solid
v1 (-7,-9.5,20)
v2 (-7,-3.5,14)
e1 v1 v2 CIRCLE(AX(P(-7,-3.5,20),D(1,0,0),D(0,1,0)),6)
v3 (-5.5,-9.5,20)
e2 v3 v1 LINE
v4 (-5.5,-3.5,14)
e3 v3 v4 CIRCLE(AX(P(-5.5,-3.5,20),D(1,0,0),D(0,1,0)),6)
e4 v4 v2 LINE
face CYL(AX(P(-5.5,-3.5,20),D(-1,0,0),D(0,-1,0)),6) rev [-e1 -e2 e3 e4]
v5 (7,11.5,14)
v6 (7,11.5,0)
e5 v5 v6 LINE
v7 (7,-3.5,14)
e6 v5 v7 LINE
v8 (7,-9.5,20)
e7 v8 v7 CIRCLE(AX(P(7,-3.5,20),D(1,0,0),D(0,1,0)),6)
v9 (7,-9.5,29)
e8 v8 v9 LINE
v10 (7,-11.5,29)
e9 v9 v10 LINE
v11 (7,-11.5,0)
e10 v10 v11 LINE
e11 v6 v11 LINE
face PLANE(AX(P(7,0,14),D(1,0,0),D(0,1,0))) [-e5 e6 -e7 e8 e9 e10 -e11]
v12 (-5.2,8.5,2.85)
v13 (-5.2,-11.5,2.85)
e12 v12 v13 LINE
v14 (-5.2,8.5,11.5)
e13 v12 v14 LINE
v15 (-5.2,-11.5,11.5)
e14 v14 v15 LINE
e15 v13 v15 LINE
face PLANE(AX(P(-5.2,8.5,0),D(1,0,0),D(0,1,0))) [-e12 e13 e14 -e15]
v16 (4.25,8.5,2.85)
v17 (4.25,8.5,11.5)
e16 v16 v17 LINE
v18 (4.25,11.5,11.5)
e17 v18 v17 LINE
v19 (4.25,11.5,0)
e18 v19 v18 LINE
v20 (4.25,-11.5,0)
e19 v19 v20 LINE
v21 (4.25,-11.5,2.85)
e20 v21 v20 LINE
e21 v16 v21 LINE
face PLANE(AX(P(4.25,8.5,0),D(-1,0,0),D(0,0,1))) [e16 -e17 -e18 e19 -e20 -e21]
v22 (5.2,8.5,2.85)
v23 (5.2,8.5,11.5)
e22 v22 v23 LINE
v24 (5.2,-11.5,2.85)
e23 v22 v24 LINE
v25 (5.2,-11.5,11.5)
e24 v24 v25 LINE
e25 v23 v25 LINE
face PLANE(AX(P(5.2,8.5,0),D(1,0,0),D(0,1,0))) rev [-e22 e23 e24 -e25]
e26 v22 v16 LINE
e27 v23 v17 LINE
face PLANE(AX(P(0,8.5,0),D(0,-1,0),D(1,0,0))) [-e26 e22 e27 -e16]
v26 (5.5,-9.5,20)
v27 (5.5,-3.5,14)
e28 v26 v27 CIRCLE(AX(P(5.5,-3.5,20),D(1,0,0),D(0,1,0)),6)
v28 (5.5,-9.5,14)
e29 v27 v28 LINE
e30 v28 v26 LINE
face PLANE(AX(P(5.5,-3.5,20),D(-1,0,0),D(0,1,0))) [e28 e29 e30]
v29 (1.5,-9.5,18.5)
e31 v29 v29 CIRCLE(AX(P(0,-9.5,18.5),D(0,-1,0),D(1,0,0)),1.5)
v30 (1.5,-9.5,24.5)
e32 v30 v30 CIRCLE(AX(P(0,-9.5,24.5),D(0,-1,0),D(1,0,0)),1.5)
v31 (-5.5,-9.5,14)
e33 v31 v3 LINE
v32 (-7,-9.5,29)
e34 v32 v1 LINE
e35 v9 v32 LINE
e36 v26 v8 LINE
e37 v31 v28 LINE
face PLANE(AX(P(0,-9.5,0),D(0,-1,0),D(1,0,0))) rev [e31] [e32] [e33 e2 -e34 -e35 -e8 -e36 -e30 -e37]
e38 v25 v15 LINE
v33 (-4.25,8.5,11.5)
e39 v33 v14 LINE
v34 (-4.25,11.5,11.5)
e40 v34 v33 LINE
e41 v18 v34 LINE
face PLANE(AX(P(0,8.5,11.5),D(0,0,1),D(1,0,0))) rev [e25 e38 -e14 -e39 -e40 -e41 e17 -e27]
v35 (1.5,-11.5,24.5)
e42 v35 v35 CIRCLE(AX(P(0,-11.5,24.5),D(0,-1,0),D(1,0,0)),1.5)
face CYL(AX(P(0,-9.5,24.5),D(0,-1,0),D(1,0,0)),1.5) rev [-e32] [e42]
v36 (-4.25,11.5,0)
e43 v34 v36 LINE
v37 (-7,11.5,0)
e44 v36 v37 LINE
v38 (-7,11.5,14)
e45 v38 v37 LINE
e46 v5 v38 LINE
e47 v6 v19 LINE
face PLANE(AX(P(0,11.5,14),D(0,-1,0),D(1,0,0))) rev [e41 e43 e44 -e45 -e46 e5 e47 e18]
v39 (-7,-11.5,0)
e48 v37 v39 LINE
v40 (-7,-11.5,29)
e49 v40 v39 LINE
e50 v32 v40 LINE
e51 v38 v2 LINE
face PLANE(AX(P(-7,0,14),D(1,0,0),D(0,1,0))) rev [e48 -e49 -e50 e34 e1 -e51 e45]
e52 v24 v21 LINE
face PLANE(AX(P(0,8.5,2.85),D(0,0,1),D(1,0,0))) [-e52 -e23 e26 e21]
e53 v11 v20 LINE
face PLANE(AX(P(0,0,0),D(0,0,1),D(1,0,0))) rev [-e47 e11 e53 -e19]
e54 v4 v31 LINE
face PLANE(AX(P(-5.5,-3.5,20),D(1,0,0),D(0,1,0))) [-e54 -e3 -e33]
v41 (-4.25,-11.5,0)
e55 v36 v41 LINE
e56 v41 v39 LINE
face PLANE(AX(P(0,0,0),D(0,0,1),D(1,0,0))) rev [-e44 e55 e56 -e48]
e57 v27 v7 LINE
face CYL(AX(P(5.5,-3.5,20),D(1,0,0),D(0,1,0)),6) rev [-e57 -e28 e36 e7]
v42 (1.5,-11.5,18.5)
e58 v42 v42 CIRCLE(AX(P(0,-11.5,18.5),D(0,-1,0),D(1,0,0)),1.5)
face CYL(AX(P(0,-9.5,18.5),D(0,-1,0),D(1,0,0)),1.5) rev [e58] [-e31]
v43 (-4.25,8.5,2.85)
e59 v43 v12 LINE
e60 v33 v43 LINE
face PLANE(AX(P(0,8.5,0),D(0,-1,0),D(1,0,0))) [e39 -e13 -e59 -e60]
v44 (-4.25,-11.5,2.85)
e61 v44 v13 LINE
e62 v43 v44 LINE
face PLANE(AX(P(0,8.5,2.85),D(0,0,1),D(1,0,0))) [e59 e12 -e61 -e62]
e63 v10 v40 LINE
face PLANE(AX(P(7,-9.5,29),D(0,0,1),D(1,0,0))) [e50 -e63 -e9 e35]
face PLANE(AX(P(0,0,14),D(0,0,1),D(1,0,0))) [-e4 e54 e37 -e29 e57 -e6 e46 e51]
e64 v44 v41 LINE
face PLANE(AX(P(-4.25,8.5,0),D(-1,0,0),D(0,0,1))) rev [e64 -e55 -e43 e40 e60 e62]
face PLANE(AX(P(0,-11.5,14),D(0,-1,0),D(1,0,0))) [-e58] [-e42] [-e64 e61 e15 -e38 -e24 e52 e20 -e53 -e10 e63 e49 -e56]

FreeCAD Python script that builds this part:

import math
import FreeCAD as App
import Part
import Sketcher
from FreeCAD import Vector
Q = App.Units.Quantity


def add_polygon(sketch, points):
    """Adds a closed chain of lines whose ends are joined by coincident constraints."""
    first, n = sketch.GeometryCount, len(points)
    for a, b in zip(points, points[1:] + points[:1]):
        sketch.addGeometry(Part.LineSegment(App.Vector(*a, 0), App.Vector(*b, 0)), False)
    for i in range(n):
        sketch.addConstraint(Sketcher.Constraint("Coincident", first + i, 2, first + (i + 1) % n, 1))

doc = App.newDocument("Part")
body = doc.addObject("PartDesign::Body", "Body")

# Sketch on XY plane
sketch1 = body.newObject("Sketcher::SketchObject", "Sketch")
sketch1.AttachmentSupport = (doc.getObject("XY_Plane"), [""])
sketch1.MapMode = "FlatFace"
add_polygon(sketch1, [(-7, 11.5), (-7, -11.5), (7, -11.5), (7, 11.5)])  # lines 0-3
sketch1.addConstraint(Sketcher.Constraint("Vertical", 0))
sketch1.addConstraint(Sketcher.Constraint("Horizontal", 1))
sketch1.addConstraint(Sketcher.Constraint("Vertical", 2))
sketch1.addConstraint(Sketcher.Constraint("Horizontal", 3))
sketch1.addConstraint(Sketcher.Constraint("Symmetric", 0, 2, 2, 2, -1, 1))
sketch1.addConstraint(Sketcher.Constraint("DistanceX", 1, 1, 1, 2, Q("14 mm")))
sketch1.addConstraint(Sketcher.Constraint("DistanceY", 0, 2, 0, 1, Q("23 mm")))
pad1 = body.newObject("PartDesign::Pad", "Pad")
pad1.Profile = sketch1
pad1.Length = 14

# Sketch on XZ plane
sketch2 = body.newObject("Sketcher::SketchObject", "Sketch001")
sketch2.AttachmentSupport = (doc.getObject("XZ_Plane"), [""])
sketch2.MapMode = "FlatFace"
sketch2.AttachmentOffset = App.Placement(Vector(0, 0, 11.5), App.Rotation())
add_polygon(sketch2, [(-5.2, 11.5), (-5.2, 2.85), (-4.25, 2.85), (-4.25, 0), (4.25, 0), (4.25, 2.85), (5.2, 2.85), (5.2, 11.5)])  # lines 0-7
sketch2.addConstraint(Sketcher.Constraint("Vertical", 0))
sketch2.addConstraint(Sketcher.Constraint("Horizontal", 1))
sketch2.addConstraint(Sketcher.Constraint("Vertical", 2))
sketch2.addConstraint(Sketcher.Constraint("Horizontal", 3))
sketch2.addConstraint(Sketcher.Constraint("Vertical", 4))
sketch2.addConstraint(Sketcher.Constraint("Horizontal", 5))
sketch2.addConstraint(Sketcher.Constraint("Vertical", 6))
sketch2.addConstraint(Sketcher.Constraint("Horizontal", 7))
sketch2.addConstraint(Sketcher.Constraint("Symmetric", 2, 2, 3, 2, -1, 1))
sketch2.addConstraint(Sketcher.Constraint("Symmetric", 0, 2, 5, 2, -2))
sketch2.addConstraint(Sketcher.Constraint("DistanceX", 3, 1, 3, 2, Q("8.5 mm")))
sketch2.addConstraint(Sketcher.Constraint("DistanceX", 7, 2, 7, 1, Q("10.4 mm")))
sketch2.addConstraint(Sketcher.Constraint("DistanceY", 0, 2, 0, 1, Q("8.65 mm")))
sketch2.addConstraint(Sketcher.Constraint("DistanceY", 2, 2, 2, 1, Q("2.85 mm")))
pocket1 = body.newObject("PartDesign::Pocket", "Pocket")
pocket1.Profile = sketch2
pocket1.Length = 20

# Sketch on XZ plane
sketch3 = body.newObject("Sketcher::SketchObject", "Sketch002")
sketch3.AttachmentSupport = (doc.getObject("XZ_Plane"), [""])
sketch3.MapMode = "FlatFace"
sketch3.AttachmentOffset = App.Placement(Vector(0, 0, 11.5), App.Rotation())
add_polygon(sketch3, [(-7, 29), (-7, 14), (7, 14), (7, 29)])  # lines 0-3
sketch3.addGeometry(Part.Circle(Vector(0, 18.5, 0), Vector(0, 0, 1), 1.5), False)  # 4
sketch3.addGeometry(Part.Circle(Vector(0, 24.5, 0), Vector(0, 0, 1), 1.5), False)  # 5
sketch3.addConstraint(Sketcher.Constraint("Vertical", 0))
sketch3.addConstraint(Sketcher.Constraint("Horizontal", 1))
sketch3.addConstraint(Sketcher.Constraint("Vertical", 2))
sketch3.addConstraint(Sketcher.Constraint("Horizontal", 3))
sketch3.addConstraint(Sketcher.Constraint("Equal", 4, 5))
sketch3.addConstraint(Sketcher.Constraint("PointOnObject", 4, 3, -2))
sketch3.addConstraint(Sketcher.Constraint("PointOnObject", 5, 3, -2))
sketch3.addConstraint(Sketcher.Constraint("Diameter", 4, Q("3 mm")))
sketch3.addConstraint(Sketcher.Constraint("DistanceX", 1, 1, 1, 2, Q("14 mm")))
sketch3.addConstraint(Sketcher.Constraint("DistanceY", 0, 2, 0, 1, Q("15 mm")))
sketch3.addConstraint(Sketcher.Constraint("DistanceX", 0, 2, -1, 1, Q("7 mm")))
sketch3.addConstraint(Sketcher.Constraint("DistanceY", -1, 1, 0, 2, Q("14 mm")))
sketch3.addConstraint(Sketcher.Constraint("DistanceY", 4, 3, 5, 3, Q("6 mm")))
sketch3.addConstraint(Sketcher.Constraint("DistanceY", -1, 1, 4, 3, Q("18.5 mm")))
pad2 = body.newObject("PartDesign::Pad", "Pad001")
pad2.Profile = sketch3
pad2.Length = 2
pad2.Reversed = True

# Sketch on YZ plane
sketch4 = body.newObject("Sketcher::SketchObject", "Sketch003")
sketch4.AttachmentSupport = (doc.getObject("YZ_Plane"), [""])
sketch4.MapMode = "FlatFace"
sketch4.AttachmentOffset = App.Placement(Vector(0, 0, -7), App.Rotation())
sketch4.addGeometry(Part.LineSegment(Vector(-3.5, 14, 0), Vector(-9.5, 14, 0)), False)
sketch4.addGeometry(Part.LineSegment(Vector(-9.5, 14, 0), Vector(-9.5, 20, 0)), False)
sketch4.addGeometry(Part.ArcOfCircle(Part.Circle(Vector(-3.5, 20, 0), Vector(0, 0, 1), 6), math.radians(180), math.radians(270)), False)
sketch4.addConstraint(Sketcher.Constraint("Coincident", 0, 2, 1, 1))
sketch4.addConstraint(Sketcher.Constraint("Tangent", 1, 2, 2, 1))
sketch4.addConstraint(Sketcher.Constraint("Tangent", 2, 2, 0, 1))
sketch4.addConstraint(Sketcher.Constraint("Horizontal", 0))
sketch4.addConstraint(Sketcher.Constraint("Vertical", 1))
sketch4.addConstraint(Sketcher.Constraint("Radius", 2, Q("6 mm")))
sketch4.addConstraint(Sketcher.Constraint("DistanceY", -1, 1, 2, 3, Q("20 mm")))
sketch4.addConstraint(Sketcher.Constraint("DistanceX", 2, 3, -1, 1, Q("3.5 mm")))
pad3 = body.newObject("PartDesign::Pad", "Pad002")
pad3.Profile = sketch4
pad3.Length = 1.5
doc.recompute()

mirrored = body.newObject("PartDesign::Mirrored", "Mirrored")
mirrored.Originals = [pad3]
mirrored.MirrorPlane = (doc.getObject("YZ_Plane"), [""])
body.Tip = mirrored

# Sketch on XZ plane
sketch5 = body.newObject("Sketcher::SketchObject", "Sketch004")
sketch5.AttachmentSupport = (doc.getObject("XZ_Plane"), [""])
sketch5.MapMode = "FlatFace"
sketch5.AttachmentOffset = App.Placement(Vector(0, 0, -8.5), App.Rotation())
add_polygon(sketch5, [(-4.25, 11.5), (-4.25, 0), (4.25, 0), (4.25, 11.5)])  # lines 0-3
sketch5.addConstraint(Sketcher.Constraint("Vertical", 0))
sketch5.addConstraint(Sketcher.Constraint("Horizontal", 1))
sketch5.addConstraint(Sketcher.Constraint("Vertical", 2))
sketch5.addConstraint(Sketcher.Constraint("Horizontal", 3))
sketch5.addConstraint(Sketcher.Constraint("Symmetric", 0, 2, 1, 2, -1, 1))
sketch5.addConstraint(Sketcher.Constraint("DistanceX", 1, 1, 1, 2, Q("8.5 mm")))
sketch5.addConstraint(Sketcher.Constraint("DistanceY", 0, 2, 0, 1, Q("11.5 mm")))
pocket2 = body.newObject("PartDesign::Pocket", "Pocket001")
pocket2.Profile = sketch5
pocket2.Type = "ThroughAll"

doc.recompute()
